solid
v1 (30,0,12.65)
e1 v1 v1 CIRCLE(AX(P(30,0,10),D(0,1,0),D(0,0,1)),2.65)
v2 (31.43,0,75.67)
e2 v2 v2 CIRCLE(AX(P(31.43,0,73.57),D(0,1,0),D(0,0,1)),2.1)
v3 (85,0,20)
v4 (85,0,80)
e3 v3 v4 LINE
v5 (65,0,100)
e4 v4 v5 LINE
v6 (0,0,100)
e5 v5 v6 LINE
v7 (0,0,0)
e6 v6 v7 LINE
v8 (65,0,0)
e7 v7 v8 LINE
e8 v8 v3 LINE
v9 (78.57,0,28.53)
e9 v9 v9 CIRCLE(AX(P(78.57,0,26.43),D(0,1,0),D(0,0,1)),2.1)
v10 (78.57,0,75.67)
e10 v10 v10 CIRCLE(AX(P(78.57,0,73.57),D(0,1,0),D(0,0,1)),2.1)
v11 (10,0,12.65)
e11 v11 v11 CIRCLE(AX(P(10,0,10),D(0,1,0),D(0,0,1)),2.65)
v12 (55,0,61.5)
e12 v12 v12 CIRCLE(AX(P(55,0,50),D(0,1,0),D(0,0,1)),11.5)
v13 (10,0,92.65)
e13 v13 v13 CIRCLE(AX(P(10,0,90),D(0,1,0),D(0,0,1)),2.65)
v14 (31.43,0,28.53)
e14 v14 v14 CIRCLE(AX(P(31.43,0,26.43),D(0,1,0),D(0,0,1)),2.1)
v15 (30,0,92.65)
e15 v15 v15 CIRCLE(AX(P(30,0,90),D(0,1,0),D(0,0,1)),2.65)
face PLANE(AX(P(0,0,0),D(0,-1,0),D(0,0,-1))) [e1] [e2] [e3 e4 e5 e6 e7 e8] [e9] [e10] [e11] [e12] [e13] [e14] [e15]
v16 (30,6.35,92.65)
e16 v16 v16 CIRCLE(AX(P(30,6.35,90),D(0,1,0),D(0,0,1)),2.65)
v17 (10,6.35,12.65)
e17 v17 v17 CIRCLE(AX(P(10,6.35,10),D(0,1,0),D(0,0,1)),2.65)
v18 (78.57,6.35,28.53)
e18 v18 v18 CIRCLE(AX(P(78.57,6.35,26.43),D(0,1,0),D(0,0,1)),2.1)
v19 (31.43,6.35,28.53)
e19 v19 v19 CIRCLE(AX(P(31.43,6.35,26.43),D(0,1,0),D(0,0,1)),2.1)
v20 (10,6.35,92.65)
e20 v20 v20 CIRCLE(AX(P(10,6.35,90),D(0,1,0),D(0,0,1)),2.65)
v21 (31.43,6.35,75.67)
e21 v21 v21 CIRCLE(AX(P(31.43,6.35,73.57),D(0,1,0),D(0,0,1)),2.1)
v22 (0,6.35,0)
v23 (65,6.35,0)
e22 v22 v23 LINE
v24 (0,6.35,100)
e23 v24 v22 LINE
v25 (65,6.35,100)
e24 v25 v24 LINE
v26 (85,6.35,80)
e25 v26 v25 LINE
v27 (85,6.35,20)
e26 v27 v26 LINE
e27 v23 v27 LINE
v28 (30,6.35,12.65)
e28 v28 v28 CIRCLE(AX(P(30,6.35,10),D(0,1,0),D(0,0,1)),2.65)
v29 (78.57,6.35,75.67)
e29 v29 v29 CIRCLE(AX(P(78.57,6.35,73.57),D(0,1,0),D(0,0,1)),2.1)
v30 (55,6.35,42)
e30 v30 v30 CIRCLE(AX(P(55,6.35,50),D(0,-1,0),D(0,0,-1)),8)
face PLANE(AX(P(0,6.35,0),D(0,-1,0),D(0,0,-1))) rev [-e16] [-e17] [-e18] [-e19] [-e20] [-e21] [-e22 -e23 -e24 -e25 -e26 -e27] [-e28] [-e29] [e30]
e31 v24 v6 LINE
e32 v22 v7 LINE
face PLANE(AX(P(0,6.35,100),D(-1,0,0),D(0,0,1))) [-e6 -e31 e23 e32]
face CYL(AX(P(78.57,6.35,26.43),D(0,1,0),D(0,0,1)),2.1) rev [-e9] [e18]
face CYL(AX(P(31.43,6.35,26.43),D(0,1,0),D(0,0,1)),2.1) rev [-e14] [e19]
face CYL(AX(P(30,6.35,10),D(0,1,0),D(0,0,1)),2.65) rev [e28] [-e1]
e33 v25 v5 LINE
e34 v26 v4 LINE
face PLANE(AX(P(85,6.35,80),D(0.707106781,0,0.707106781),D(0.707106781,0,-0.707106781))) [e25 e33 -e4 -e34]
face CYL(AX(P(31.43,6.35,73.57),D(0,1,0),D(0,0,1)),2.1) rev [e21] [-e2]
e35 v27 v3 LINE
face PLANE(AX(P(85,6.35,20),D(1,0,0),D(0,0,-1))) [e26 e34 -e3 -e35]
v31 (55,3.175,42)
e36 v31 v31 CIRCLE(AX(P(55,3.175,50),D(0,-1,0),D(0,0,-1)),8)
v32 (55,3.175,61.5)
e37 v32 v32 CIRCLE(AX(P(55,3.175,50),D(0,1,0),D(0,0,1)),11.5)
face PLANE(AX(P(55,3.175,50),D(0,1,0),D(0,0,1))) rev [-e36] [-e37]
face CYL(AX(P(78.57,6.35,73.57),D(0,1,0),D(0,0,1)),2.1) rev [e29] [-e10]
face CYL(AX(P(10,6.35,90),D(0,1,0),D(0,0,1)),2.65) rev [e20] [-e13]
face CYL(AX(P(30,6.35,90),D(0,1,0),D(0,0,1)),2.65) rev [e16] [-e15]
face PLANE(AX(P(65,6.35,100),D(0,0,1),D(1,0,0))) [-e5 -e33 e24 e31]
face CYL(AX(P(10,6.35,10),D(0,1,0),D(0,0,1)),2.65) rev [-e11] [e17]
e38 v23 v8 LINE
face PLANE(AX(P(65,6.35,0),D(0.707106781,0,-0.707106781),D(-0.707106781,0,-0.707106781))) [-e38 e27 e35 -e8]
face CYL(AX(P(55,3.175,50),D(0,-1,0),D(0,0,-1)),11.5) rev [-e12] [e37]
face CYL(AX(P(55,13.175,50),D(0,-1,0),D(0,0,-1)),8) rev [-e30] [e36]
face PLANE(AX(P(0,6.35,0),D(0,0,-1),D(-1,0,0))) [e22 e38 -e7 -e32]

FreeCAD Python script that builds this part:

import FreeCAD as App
import Part
import Sketcher

doc = App.newDocument("Part")
body = doc.addObject("PartDesign::Body", "Body")

sketch1 = body.newObject("Sketcher::SketchObject", "Sketch")
sketch1.AttachmentSupport = (doc.getObject("XZ_Plane"), [""])
sketch1.MapMode = "FlatFace"
sketch1.addGeometry(Part.LineSegment(App.Vector(65, 0, 0), App.Vector(0, 0, 0)), False)
sketch1.addGeometry(Part.LineSegment(App.Vector(0, 0, 0), App.Vector(0, 100, 0)), False)
sketch1.addGeometry(Part.LineSegment(App.Vector(0, 100, 0), App.Vector(65, 100, 0)), False)
sketch1.addGeometry(Part.LineSegment(App.Vector(65, 100, 0), App.Vector(85, 80, 0)), False)
sketch1.addGeometry(Part.LineSegment(App.Vector(85, 80, 0), App.Vector(85, 20, 0)), False)
sketch1.addGeometry(Part.LineSegment(App.Vector(85, 20, 0), App.Vector(65, 0, 0)), False)
sketch1.addConstraint(Sketcher.Constraint("Coincident", 0, 2, 1, 1))
sketch1.addConstraint(Sketcher.Constraint("Coincident", 1, 2, 2, 1))
sketch1.addConstraint(Sketcher.Constraint("Coincident", 2, 2, 3, 1))
sketch1.addConstraint(Sketcher.Constraint("Coincident", 3, 2, 4, 1))
sketch1.addConstraint(Sketcher.Constraint("Coincident", 4, 2, 5, 1))
sketch1.addConstraint(Sketcher.Constraint("Coincident", 5, 2, 0, 1))
sketch1.addConstraint(Sketcher.Constraint("Horizontal", 0))
sketch1.addConstraint(Sketcher.Constraint("Vertical", 1))
sketch1.addConstraint(Sketcher.Constraint("Horizontal", 2))
sketch1.addConstraint(Sketcher.Constraint("Vertical", 4))
sketch1.addConstraint(Sketcher.Constraint("Coincident", 0, 2, -1, 1))
sketch1.addConstraint(Sketcher.Constraint("Perpendicular", 3, 5))
sketch1.addConstraint(Sketcher.Constraint("Vertical", 2, 2, 5, 2))
sketch1.addConstraint(Sketcher.Constraint("Equal", 3, 5))
sketch1.addConstraint(Sketcher.Constraint("DistanceX", 0, 2, 0, 1, 65.0))
sketch1.addConstraint(Sketcher.Constraint("DistanceY", 1, 1, 1, 2, 100.0))
sketch1.addConstraint(Sketcher.Constraint("DistanceY", 4, 2, 4, 1, 60.0))
pad1 = body.newObject("PartDesign::Pad", "Pad")
pad1.Profile = sketch1
pad1.Length = 6.35
pad1.Reversed = True

sketch2 = body.newObject("Sketcher::SketchObject", "Sketch001")
sketch2.AttachmentSupport = (doc.getObject("XZ_Plane"), [""])
sketch2.MapMode = "FlatFace"
sketch2.AttachmentOffset = App.Placement(App.Vector(0, 0, -6.35), App.Rotation())
sketch2.addGeometry(Part.Circle(App.Vector(78.57, 26.43, 0), App.Vector(0, 0, 1), 2.1), False)
sketch2.addGeometry(Part.Circle(App.Vector(31.43, 26.43, 0), App.Vector(0, 0, 1), 2.1), False)
sketch2.addGeometry(Part.Circle(App.Vector(31.43, 73.57, 0), App.Vector(0, 0, 1), 2.1), False)
sketch2.addGeometry(Part.Circle(App.Vector(78.57, 73.57, 0), App.Vector(0, 0, 1), 2.1), False)
sketch2.addConstraint(Sketcher.Constraint("Equal", 0, 1))
sketch2.addConstraint(Sketcher.Constraint("Equal", 1, 2))
sketch2.addConstraint(Sketcher.Constraint("Equal", 2, 3))
sketch2.addConstraint(Sketcher.Constraint("Horizontal", 0, 3, 1, 3))
sketch2.addConstraint(Sketcher.Constraint("Horizontal", 2, 3, 3, 3))
sketch2.addConstraint(Sketcher.Constraint("Vertical", 1, 3, 2, 3))
sketch2.addConstraint(Sketcher.Constraint("Vertical", 0, 3, 3, 3))
sketch2.addConstraint(Sketcher.Constraint("Diameter", 0, 4.2))
sketch2.addConstraint(Sketcher.Constraint("DistanceX", -1, 1, 0, 3, 78.57))
sketch2.addConstraint(Sketcher.Constraint("DistanceY", -1, 1, 0, 3, 26.43))
sketch2.addConstraint(Sketcher.Constraint("DistanceX", -1, 1, 1, 3, 31.43))
sketch2.addConstraint(Sketcher.Constraint("DistanceY", -1, 1, 2, 3, 73.57))
doc.recompute()
hole = body.newObject("PartDesign::Hole", "Hole")
hole.Profile = sketch2
hole.ThreadType = "None"
hole.Diameter = 4.2
hole.DepthType = "ThroughAll"
hole.Reversed = True

sketch3 = body.newObject("Sketcher::SketchObject", "Sketch002")
sketch3.AttachmentSupport = (doc.getObject("XZ_Plane"), [""])
sketch3.MapMode = "FlatFace"
sketch3.AttachmentOffset = App.Placement(App.Vector(0, 0, -6.35), App.Rotation())
sketch3.addGeometry(Part.Circle(App.Vector(10, 10, 0), App.Vector(0, 0, 1), 2.65), False)
sketch3.addGeometry(Part.Circle(App.Vector(30, 10, 0), App.Vector(0, 0, 1), 2.65), False)
sketch3.addGeometry(Part.Circle(App.Vector(10, 90, 0), App.Vector(0, 0, 1), 2.65), False)
sketch3.addGeometry(Part.Circle(App.Vector(30, 90, 0), App.Vector(0, 0, 1), 2.65), False)
sketch3.addConstraint(Sketcher.Constraint("Equal", 0, 1))
sketch3.addConstraint(Sketcher.Constraint("Equal", 1, 2))
sketch3.addConstraint(Sketcher.Constraint("Equal", 2, 3))
sketch3.addConstraint(Sketcher.Constraint("Horizontal", 0, 3, 1, 3))
sketch3.addConstraint(Sketcher.Constraint("Horizontal", 2, 3, 3, 3))
sketch3.addConstraint(Sketcher.Constraint("Vertical", 0, 3, 2, 3))
sketch3.addConstraint(Sketcher.Constraint("Vertical", 1, 3, 3, 3))
sketch3.addConstraint(Sketcher.Constraint("Diameter", 0, 5.3))
sketch3.addConstraint(Sketcher.Constraint("DistanceX", -1, 1, 0, 3, 10.0))
sketch3.addConstraint(Sketcher.Constraint("DistanceY", -1, 1, 0, 3, 10.0))
sketch3.addConstraint(Sketcher.Constraint("DistanceX", -1, 1, 1, 3, 30.0))
sketch3.addConstraint(Sketcher.Constraint("DistanceY", -1, 1, 2, 3, 90.0))
doc.recompute()
hole2 = body.newObject("PartDesign::Hole", "Hole001")
hole2.Profile = sketch3
hole2.ThreadType = "None"
hole2.Diameter = 5.3
hole2.DepthType = "ThroughAll"
hole2.Reversed = True

sketch4 = body.newObject("Sketcher::SketchObject", "Sketch003")
sketch4.AttachmentSupport = (doc.getObject("XZ_Plane"), [""])
sketch4.MapMode = "FlatFace"
sketch4.addGeometry(Part.Circle(App.Vector(55, 50, 0), App.Vector(0, 0, 1), 11.5), False)
sketch4.addConstraint(Sketcher.Constraint("Diameter", 0, 23.0))
sketch4.addConstraint(Sketcher.Constraint("DistanceX", -1, 1, 0, 3, 55.0))
sketch4.addConstraint(Sketcher.Constraint("DistanceY", -1, 1, 0, 3, 50.0))
pocket1 = body.newObject("PartDesign::Pocket", "Pocket")
pocket1.Profile = sketch4
pocket1.Length = 3.175

sketch5 = body.newObject("Sketcher::SketchObject", "Sketch004")
sketch5.AttachmentSupport = (doc.getObject("XZ_Plane"), [""])
sketch5.MapMode = "FlatFace"
sketch5.AttachmentOffset = App.Placement(App.Vector(0, 0, -3.175), App.Rotation())
sketch5.addGeometry(Part.Circle(App.Vector(55, 50, 0), App.Vector(0, 0, 1), 8), False)
sketch5.addConstraint(Sketcher.Constraint("Diameter", 0, 16.0))
sketch5.addConstraint(Sketcher.Constraint("DistanceX", -1, 1, 0, 3, 55.0))
sketch5.addConstraint(Sketcher.Constraint("DistanceY", -1, 1, 0, 3, 50.0))
pocket2 = body.newObject("PartDesign::Pocket", "Pocket001")
pocket2.Profile = sketch5
pocket2.Length = 10

doc.recompute()
